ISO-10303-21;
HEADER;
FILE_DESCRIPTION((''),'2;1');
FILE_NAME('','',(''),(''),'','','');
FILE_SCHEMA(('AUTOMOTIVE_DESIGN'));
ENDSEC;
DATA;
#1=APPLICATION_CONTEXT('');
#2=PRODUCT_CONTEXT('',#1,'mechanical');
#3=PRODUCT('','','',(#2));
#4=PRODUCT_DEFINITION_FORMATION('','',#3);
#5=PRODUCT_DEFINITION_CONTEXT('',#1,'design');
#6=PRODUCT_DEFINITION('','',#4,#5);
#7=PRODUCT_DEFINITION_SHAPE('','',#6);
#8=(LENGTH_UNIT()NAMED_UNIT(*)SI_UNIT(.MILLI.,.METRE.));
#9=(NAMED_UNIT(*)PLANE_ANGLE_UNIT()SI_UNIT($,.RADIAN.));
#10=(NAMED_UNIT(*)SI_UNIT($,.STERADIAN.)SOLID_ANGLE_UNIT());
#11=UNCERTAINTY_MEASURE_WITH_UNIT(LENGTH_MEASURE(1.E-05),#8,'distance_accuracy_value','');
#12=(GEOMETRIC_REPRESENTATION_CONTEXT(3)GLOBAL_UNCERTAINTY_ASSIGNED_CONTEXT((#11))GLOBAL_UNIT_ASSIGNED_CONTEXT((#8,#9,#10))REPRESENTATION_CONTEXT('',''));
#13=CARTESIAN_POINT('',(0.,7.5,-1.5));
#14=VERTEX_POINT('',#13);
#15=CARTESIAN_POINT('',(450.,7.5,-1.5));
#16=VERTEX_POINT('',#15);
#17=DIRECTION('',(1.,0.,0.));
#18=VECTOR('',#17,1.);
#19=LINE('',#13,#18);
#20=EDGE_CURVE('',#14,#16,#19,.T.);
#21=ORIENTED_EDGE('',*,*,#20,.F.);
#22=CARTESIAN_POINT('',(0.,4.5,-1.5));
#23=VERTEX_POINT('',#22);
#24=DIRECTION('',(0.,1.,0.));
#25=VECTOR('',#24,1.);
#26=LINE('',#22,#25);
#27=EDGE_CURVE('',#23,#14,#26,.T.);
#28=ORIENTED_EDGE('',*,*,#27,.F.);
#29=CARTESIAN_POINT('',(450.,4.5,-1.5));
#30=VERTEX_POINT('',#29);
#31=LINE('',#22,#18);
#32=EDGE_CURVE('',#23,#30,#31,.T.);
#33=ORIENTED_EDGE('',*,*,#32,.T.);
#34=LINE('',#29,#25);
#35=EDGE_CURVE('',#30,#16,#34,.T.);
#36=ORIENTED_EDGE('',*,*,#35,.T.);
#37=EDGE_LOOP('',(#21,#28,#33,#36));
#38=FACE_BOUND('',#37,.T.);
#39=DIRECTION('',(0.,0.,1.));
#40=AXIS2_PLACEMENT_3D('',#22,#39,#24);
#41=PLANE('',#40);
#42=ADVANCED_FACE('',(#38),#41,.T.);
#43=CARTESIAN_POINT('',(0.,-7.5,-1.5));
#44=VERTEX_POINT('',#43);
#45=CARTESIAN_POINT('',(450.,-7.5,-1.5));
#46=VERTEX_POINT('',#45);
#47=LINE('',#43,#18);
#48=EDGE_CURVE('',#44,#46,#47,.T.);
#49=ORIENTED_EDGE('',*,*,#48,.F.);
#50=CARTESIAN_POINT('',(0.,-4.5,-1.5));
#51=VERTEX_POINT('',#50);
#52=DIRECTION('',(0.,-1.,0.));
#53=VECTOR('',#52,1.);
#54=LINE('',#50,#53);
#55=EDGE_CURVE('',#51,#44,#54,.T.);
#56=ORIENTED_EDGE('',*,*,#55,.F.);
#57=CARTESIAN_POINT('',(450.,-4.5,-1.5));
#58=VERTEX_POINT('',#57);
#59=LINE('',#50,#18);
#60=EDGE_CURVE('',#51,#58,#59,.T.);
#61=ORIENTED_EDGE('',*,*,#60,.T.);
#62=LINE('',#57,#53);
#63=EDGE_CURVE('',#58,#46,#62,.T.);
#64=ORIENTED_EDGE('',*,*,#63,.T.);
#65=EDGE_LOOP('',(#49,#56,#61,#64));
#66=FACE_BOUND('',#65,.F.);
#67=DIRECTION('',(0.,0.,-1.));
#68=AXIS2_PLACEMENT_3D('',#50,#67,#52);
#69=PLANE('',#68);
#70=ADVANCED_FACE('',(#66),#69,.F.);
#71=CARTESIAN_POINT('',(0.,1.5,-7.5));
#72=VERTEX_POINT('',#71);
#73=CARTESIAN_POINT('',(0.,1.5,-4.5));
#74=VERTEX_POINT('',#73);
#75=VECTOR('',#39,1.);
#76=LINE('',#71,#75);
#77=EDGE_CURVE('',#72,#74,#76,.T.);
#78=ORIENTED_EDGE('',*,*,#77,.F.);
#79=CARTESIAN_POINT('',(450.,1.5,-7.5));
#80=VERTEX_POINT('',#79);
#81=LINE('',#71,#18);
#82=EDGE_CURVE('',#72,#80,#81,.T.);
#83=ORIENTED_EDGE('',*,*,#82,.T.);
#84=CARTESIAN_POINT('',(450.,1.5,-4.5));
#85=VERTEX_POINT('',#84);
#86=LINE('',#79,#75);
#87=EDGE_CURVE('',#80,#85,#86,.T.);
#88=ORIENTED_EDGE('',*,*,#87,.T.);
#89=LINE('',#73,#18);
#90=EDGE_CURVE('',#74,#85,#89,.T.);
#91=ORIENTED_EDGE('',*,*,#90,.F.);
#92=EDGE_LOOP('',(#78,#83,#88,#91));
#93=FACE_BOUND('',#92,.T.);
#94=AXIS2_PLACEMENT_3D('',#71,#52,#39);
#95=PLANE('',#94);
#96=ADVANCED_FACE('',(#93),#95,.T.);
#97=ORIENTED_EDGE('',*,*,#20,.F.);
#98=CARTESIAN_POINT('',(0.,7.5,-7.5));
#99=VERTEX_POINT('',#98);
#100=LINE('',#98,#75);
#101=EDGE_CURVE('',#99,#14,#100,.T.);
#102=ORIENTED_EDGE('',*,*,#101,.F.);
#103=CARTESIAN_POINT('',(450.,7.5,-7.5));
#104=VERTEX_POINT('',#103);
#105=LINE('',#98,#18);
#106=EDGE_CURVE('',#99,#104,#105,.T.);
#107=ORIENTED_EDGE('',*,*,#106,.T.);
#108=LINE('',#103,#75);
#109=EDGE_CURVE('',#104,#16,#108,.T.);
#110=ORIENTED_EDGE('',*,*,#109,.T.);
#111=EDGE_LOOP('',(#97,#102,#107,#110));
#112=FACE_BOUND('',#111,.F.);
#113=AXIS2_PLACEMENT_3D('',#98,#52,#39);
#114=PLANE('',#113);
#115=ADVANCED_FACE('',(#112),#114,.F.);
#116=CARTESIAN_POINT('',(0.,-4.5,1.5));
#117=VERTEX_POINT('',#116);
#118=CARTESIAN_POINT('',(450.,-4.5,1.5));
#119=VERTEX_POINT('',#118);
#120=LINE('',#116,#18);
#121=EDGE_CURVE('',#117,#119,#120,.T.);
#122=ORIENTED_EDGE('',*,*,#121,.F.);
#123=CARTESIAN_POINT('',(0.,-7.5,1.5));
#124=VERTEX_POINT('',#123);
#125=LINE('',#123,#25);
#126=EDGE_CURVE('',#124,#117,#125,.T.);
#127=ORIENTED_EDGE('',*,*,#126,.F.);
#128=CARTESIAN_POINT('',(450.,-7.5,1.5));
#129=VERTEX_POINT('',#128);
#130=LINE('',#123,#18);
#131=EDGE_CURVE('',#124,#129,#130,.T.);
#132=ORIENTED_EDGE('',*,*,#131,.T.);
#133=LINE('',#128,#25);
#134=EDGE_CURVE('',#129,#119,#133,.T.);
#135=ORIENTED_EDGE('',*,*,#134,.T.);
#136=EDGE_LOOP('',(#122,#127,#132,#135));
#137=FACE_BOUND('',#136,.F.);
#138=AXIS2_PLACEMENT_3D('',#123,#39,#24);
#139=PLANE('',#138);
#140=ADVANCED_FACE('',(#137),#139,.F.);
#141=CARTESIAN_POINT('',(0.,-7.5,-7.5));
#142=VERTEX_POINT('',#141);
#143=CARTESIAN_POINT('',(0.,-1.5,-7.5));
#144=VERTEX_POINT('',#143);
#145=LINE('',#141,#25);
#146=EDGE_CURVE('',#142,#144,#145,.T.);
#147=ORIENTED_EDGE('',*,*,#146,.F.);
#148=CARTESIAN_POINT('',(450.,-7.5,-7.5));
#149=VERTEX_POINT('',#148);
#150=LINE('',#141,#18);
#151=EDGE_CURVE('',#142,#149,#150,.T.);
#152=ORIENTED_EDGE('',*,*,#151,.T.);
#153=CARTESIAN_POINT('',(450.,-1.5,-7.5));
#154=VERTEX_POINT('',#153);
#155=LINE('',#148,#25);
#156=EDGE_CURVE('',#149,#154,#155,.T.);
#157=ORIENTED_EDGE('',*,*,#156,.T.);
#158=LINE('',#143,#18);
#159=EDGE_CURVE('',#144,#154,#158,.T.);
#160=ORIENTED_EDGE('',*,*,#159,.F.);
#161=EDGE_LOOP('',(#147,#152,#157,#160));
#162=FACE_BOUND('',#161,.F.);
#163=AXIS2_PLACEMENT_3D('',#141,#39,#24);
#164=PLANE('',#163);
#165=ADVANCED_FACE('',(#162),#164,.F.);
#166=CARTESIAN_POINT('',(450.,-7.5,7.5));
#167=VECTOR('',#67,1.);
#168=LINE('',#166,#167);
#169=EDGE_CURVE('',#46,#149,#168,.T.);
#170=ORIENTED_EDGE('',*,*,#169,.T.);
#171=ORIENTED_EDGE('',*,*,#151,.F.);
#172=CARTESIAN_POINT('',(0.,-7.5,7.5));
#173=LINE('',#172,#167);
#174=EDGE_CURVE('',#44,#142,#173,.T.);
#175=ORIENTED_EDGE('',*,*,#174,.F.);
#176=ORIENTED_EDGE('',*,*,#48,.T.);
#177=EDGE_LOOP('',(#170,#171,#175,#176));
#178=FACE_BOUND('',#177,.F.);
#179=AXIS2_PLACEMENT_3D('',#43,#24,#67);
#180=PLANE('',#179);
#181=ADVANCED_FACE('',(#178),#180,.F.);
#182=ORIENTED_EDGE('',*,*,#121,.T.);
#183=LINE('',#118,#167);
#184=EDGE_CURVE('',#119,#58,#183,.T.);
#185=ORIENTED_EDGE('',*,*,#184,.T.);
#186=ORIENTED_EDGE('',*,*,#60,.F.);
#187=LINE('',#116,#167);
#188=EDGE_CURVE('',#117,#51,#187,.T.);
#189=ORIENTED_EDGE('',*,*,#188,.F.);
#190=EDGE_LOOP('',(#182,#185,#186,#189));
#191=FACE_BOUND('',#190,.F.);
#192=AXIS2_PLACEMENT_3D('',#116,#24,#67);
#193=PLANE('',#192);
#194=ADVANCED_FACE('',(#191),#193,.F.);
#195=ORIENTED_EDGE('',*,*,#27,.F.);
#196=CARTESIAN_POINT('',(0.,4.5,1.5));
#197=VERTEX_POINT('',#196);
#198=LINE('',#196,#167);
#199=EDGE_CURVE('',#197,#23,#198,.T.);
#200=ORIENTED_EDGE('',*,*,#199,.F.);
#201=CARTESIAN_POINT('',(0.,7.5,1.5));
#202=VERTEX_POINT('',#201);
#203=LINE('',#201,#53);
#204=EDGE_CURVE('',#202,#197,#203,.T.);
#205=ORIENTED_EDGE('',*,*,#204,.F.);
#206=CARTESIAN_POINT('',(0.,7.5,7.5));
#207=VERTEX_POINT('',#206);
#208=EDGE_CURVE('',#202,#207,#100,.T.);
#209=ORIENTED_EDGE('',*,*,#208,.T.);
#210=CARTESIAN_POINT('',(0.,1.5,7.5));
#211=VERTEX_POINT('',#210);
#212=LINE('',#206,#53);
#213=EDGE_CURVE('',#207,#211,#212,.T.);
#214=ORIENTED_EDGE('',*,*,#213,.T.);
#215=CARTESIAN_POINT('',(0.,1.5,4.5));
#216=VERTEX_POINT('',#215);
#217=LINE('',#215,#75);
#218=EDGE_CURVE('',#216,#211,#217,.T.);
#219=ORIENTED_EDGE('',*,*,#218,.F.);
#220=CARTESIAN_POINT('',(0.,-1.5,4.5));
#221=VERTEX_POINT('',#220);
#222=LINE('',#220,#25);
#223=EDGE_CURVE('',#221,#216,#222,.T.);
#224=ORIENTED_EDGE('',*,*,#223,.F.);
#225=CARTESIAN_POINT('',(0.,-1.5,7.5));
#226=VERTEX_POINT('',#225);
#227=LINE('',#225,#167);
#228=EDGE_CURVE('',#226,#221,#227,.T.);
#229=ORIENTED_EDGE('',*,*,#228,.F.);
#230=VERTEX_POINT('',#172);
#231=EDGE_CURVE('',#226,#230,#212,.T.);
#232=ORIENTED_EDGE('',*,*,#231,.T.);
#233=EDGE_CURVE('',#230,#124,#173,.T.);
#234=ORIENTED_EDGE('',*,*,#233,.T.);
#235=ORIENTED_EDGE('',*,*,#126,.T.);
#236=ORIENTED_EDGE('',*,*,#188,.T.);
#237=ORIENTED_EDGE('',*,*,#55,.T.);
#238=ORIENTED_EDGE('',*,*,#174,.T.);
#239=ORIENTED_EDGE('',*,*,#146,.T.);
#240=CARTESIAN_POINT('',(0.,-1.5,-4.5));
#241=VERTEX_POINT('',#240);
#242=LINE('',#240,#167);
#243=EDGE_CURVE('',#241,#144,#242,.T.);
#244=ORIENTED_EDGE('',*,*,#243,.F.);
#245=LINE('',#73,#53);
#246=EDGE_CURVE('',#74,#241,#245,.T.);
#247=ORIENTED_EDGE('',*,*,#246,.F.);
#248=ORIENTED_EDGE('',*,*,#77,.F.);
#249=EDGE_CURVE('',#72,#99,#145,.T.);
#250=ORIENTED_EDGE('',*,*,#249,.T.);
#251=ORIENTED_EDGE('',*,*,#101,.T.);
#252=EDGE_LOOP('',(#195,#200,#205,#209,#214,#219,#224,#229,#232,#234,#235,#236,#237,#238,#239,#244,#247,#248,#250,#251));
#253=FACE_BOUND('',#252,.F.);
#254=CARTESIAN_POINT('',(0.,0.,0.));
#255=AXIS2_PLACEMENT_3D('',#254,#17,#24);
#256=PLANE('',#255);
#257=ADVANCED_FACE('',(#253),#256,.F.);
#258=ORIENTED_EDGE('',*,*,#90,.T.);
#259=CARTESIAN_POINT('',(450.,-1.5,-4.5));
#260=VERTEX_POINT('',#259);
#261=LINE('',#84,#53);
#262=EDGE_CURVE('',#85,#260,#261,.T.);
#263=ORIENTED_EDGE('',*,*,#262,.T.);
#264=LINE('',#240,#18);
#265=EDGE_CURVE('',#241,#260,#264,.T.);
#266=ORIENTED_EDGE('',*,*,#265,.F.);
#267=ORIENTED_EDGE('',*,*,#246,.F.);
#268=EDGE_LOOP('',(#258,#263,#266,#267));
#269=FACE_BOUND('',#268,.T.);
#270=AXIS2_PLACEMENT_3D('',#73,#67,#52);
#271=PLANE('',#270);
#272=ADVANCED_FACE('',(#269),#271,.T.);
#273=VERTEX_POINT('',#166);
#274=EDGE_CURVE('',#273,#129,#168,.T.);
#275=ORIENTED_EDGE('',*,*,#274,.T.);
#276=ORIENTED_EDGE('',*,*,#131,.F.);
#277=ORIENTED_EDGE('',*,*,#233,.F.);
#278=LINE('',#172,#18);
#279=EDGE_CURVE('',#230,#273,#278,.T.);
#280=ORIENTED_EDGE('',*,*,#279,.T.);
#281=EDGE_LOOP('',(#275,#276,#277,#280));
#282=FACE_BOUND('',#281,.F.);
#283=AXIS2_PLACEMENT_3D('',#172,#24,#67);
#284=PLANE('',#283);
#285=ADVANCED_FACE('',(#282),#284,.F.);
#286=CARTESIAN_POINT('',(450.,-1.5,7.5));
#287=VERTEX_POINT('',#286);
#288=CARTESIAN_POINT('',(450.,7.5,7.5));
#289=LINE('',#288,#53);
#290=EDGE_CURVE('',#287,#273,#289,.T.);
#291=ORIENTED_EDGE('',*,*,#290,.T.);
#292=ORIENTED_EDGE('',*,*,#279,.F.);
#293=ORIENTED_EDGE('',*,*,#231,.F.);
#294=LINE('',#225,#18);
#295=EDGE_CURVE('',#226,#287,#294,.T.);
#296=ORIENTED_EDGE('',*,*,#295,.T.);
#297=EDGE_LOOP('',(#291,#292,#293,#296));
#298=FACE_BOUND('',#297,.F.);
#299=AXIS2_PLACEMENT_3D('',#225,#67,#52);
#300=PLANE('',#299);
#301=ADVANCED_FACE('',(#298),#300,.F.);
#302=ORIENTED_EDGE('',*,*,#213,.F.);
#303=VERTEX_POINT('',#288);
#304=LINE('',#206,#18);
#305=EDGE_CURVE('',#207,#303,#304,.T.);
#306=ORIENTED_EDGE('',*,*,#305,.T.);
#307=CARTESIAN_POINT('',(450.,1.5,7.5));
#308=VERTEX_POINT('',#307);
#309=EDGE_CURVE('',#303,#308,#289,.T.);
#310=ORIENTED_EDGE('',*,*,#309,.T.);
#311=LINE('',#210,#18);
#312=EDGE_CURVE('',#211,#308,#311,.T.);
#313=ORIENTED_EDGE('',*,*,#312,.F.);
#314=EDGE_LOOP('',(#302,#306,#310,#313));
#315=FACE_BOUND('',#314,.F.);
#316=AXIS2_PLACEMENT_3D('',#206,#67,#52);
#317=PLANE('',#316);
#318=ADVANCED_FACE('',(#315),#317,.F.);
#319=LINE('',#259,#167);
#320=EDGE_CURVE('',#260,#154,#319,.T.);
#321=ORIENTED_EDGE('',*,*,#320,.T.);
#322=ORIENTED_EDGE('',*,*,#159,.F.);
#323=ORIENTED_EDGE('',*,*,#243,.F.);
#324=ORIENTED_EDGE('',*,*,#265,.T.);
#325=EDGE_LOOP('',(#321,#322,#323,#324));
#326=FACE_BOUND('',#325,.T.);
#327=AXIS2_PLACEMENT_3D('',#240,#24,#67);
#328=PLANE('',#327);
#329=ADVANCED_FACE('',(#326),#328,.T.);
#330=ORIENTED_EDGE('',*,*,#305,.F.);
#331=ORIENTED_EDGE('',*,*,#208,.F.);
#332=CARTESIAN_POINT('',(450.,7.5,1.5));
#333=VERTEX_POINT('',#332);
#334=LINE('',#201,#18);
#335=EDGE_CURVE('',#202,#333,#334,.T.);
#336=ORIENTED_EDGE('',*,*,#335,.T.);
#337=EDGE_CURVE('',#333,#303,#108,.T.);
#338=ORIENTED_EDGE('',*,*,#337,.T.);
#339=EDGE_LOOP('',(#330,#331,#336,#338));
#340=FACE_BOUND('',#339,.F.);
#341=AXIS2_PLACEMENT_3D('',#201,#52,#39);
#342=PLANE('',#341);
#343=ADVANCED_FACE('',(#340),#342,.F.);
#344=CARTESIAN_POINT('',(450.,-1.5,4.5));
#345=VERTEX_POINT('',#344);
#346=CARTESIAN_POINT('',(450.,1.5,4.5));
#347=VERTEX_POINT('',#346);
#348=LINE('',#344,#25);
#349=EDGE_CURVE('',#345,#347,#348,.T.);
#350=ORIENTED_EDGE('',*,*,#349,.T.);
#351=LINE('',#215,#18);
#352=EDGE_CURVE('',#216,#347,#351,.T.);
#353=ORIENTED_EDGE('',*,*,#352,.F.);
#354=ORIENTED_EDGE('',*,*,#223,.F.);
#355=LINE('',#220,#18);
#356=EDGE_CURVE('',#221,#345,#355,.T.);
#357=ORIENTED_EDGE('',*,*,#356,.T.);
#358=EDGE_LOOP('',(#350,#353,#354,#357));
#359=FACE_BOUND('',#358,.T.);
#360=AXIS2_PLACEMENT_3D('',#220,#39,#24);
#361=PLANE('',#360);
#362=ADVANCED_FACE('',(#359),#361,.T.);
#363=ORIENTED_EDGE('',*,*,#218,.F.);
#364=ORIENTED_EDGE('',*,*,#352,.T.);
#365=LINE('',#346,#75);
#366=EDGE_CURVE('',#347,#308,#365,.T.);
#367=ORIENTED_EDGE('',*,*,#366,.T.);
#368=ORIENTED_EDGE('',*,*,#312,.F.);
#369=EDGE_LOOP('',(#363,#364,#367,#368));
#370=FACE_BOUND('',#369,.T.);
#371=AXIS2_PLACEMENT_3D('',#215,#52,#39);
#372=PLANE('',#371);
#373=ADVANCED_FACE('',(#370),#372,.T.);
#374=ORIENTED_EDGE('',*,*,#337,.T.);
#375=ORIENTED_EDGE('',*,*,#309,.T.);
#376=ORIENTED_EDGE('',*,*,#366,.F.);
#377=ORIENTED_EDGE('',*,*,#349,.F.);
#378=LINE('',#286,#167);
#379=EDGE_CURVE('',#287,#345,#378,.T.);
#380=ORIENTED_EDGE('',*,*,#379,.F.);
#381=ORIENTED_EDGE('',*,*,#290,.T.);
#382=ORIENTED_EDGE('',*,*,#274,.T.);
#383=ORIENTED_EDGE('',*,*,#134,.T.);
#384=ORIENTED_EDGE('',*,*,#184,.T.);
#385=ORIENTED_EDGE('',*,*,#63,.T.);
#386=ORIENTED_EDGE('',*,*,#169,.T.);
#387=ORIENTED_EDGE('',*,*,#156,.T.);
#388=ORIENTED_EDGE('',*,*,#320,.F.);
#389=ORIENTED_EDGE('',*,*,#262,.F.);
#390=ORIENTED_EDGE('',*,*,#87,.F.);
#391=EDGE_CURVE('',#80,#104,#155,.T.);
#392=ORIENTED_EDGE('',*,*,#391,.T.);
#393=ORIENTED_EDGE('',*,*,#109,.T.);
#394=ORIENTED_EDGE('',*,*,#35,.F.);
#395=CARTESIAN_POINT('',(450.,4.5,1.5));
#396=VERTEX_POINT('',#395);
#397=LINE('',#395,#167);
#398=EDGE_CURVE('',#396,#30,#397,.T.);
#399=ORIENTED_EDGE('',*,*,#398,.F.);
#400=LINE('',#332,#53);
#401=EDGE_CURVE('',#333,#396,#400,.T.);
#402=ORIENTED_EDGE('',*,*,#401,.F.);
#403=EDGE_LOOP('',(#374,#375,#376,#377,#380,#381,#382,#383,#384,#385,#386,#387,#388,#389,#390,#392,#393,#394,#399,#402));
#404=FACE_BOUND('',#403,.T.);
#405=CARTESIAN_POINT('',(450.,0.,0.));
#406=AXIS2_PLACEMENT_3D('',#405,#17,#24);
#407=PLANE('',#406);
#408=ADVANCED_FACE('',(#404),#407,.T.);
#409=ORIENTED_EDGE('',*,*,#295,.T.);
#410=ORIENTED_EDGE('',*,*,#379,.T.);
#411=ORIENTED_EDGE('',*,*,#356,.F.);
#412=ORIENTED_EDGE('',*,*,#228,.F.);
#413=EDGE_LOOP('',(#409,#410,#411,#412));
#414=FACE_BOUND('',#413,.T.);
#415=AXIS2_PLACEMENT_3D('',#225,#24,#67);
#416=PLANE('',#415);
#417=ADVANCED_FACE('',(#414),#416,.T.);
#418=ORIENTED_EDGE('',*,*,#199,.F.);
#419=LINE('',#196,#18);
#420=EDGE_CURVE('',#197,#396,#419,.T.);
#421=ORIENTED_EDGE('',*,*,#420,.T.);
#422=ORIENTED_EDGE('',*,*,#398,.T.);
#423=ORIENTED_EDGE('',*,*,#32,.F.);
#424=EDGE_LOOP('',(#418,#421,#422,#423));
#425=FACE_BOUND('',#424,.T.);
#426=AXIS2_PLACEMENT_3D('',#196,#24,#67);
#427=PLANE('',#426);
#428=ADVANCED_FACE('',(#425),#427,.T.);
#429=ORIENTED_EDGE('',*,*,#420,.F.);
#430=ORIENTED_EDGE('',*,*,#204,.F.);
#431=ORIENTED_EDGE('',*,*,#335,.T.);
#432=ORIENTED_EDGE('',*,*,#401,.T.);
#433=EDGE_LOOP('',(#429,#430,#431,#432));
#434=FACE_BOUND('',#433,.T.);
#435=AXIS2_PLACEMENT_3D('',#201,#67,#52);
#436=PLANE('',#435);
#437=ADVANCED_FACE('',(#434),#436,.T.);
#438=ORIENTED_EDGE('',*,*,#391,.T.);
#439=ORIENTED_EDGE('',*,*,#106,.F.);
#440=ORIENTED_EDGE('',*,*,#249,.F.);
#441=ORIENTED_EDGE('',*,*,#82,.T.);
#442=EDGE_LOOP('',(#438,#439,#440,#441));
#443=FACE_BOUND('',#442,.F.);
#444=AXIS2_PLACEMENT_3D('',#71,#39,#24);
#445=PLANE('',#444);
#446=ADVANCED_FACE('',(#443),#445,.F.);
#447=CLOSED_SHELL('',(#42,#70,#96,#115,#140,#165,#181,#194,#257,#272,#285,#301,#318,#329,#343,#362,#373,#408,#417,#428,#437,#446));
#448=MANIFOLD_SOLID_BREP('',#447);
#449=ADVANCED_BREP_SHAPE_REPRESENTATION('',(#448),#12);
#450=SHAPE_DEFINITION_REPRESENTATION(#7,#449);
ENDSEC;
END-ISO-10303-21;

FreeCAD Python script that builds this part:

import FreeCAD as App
import Part
import Sketcher
from FreeCAD import Vector


def add_polygon(sketch, points):
    """Adds a closed chain of lines whose ends are joined by coincident constraints."""
    first, n = sketch.GeometryCount, len(points)
    for a, b in zip(points, points[1:] + points[:1]):
        sketch.addGeometry(Part.LineSegment(App.Vector(*a, 0), App.Vector(*b, 0)), False)
    for i in range(n):
        sketch.addConstraint(Sketcher.Constraint("Coincident", first + i, 2, first + (i + 1) % n, 1))

doc = App.newDocument("Part")
body = doc.addObject("PartDesign::Body", "Body")

sketch1 = body.newObject("Sketcher::SketchObject", "Sketch")
sketch1.AttachmentSupport = (doc.getObject("YZ_Plane"), [""])
sketch1.MapMode = "FlatFace"
add_polygon(sketch1, [(-7.5, -1.5), (-7.5, -7.5), (-1.5, -7.5), (-1.5, -4.5), (1.5, -4.5), (1.5, -7.5), (7.5, -7.5), (7.5, -1.5), (4.5, -1.5), (4.5, 1.5), (7.5, 1.5), (7.5, 7.5), (1.5, 7.5), (1.5, 4.5), (-1.5, 4.5), (-1.5, 7.5), (-7.5, 7.5), (-7.5, 1.5), (-4.5, 1.5), (-4.5, -1.5)])
sketch1.addConstraint(Sketcher.Constraint("Vertical", 0))
sketch1.addConstraint(Sketcher.Constraint("Horizontal", 1))
sketch1.addConstraint(Sketcher.Constraint("Vertical", 2))
sketch1.addConstraint(Sketcher.Constraint("Horizontal", 3))
sketch1.addConstraint(Sketcher.Constraint("Vertical", 4))
sketch1.addConstraint(Sketcher.Constraint("Horizontal", 5))
sketch1.addConstraint(Sketcher.Constraint("Vertical", 6))
sketch1.addConstraint(Sketcher.Constraint("Horizontal", 7))
sketch1.addConstraint(Sketcher.Constraint("Vertical", 8))
sketch1.addConstraint(Sketcher.Constraint("Horizontal", 9))
sketch1.addConstraint(Sketcher.Constraint("Vertical", 10))
sketch1.addConstraint(Sketcher.Constraint("Horizontal", 11))
sketch1.addConstraint(Sketcher.Constraint("Vertical", 12))
sketch1.addConstraint(Sketcher.Constraint("Horizontal", 13))
sketch1.addConstraint(Sketcher.Constraint("Vertical", 14))
sketch1.addConstraint(Sketcher.Constraint("Horizontal", 15))
sketch1.addConstraint(Sketcher.Constraint("Vertical", 16))
sketch1.addConstraint(Sketcher.Constraint("Horizontal", 17))
sketch1.addConstraint(Sketcher.Constraint("Vertical", 18))
sketch1.addConstraint(Sketcher.Constraint("Horizontal", 19))
sketch1.addConstraint(Sketcher.Constraint("Symmetric", 0, 2, 10, 2, -1, 1))
sketch1.addConstraint(Sketcher.Constraint("Symmetric", 2, 2, 12, 2, -1, 1))
sketch1.addConstraint(Sketcher.Constraint("Symmetric", 4, 2, 14, 2, -1, 1))
sketch1.addConstraint(Sketcher.Constraint("Symmetric", 6, 2, 16, 2, -1, 1))
sketch1.addConstraint(Sketcher.Constraint("Symmetric", 8, 2, 18, 2, -1, 1))
sketch1.addConstraint(Sketcher.Constraint("Symmetric", 1, 2, 4, 2, -2))
sketch1.addConstraint(Sketcher.Constraint("Symmetric", 9, 2, 16, 2, -2))
sketch1.addConstraint(Sketcher.Constraint("Equal", 3, 7))
sketch1.addConstraint(Sketcher.Constraint("Equal", 15, 0))
sketch1.addConstraint(Sketcher.Constraint("Equal", 19, 2))
sketch1.addConstraint(Sketcher.Constraint("Equal", 4, 8))
sketch1.addConstraint(Sketcher.Constraint("DistanceX", 3, 1, 3, 2, 3.0))
sketch1.addConstraint(Sketcher.Constraint("DistanceX", 0, 2, 5, 2, 15.0))
pad1 = body.newObject("PartDesign::Pad", "Pad")
pad1.Profile = sketch1
pad1.Length = 450

doc.recompute()
